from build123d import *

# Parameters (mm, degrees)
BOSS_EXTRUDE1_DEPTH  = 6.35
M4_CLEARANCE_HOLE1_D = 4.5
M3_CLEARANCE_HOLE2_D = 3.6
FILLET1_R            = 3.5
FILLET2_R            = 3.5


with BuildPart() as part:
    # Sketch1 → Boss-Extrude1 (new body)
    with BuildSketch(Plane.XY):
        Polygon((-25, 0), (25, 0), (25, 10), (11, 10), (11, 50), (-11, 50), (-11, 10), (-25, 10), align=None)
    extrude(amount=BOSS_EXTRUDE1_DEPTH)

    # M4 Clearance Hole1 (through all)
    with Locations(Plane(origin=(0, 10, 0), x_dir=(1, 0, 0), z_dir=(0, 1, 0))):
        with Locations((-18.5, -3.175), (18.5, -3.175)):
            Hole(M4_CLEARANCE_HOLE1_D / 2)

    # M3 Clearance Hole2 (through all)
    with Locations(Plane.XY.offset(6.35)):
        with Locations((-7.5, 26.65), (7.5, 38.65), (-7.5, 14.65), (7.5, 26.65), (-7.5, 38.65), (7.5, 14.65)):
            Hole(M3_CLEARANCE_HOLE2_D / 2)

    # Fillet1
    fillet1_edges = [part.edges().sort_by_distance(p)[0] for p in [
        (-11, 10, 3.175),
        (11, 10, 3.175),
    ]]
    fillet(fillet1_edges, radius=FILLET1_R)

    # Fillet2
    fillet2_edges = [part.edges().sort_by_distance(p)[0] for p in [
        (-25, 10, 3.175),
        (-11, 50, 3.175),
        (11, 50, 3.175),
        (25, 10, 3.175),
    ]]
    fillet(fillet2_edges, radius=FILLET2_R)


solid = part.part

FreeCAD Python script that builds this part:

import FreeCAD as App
import Part
import Sketcher


def edges_at(feature, points):
    """Names of the edges that pass closest to the given points."""
    edges = feature.Shape.Edges
    near = lambda p: min(range(len(edges)), key=lambda i: edges[i].distToShape(Part.Vertex(*p))[0])
    return sorted({f"Edge{near(p) + 1}" for p in points})


def add_polygon(sketch, points):
    """Adds a closed chain of lines whose ends are joined by coincident constraints."""
    first, n = sketch.GeometryCount, len(points)
    for a, b in zip(points, points[1:] + points[:1]):
        sketch.addGeometry(Part.LineSegment(App.Vector(*a, 0), App.Vector(*b, 0)), False)
    for i in range(n):
        sketch.addConstraint(Sketcher.Constraint("Coincident", first + i, 2, first + (i + 1) % n, 1))

doc = App.newDocument("Part")
params = doc.addObject("Spreadsheet::Sheet", "Params")
for row, (alias, value) in enumerate([
    ("sketch1_width", "50 mm"),
    ("sketch1_width2", "14 mm"),
    ("sketch1_height", "10 mm"),
    ("sketch1_height2", "40 mm"),
    ("pad1_length", "6.35 mm"),
    ("sketch2_diameter", "4.5 mm"),
    ("hole_diameter", "4.5 mm"),
    ("sketch3_diameter", "3.6 mm"),
    ("hole2_diameter", "3.6 mm"),
    ("fillet_radius", "3.5 mm"),
    ("fillet2_radius", "3.5 mm"),
], start=1):
    params.set(f"A{row}", alias)
    params.set(f"B{row}", "=" + value)
    params.setAlias(f"B{row}", alias)

body = doc.addObject("PartDesign::Body", "Body")

# Sketch on XY plane
sketch1 = body.newObject("Sketcher::SketchObject", "Sketch")
sketch1.AttachmentSupport = (doc.getObject("XY_Plane"), [""])
sketch1.MapMode = "FlatFace"
add_polygon(sketch1, [(-25, 0), (25, 0), (25, 10), (11, 10), (11, 50), (-11, 50), (-11, 10), (-25, 10)])  # lines 0-7
sketch1.addConstraint([
    Sketcher.Constraint("Horizontal", 0),
    Sketcher.Constraint("Vertical", 1),
    Sketcher.Constraint("Horizontal", 2),
    Sketcher.Constraint("Vertical", 3),
    Sketcher.Constraint("Horizontal", 4),
    Sketcher.Constraint("Vertical", 5),
    Sketcher.Constraint("Horizontal", 6),
    Sketcher.Constraint("Vertical", 7),
    Sketcher.Constraint("Symmetric", 0, 2, 7, 2, -1, 1),
    Sketcher.Constraint("Symmetric", 2, 2, 5, 2, -2),
    Sketcher.Constraint("DistanceX", 0, 1, 0, 2, 50.0),
    Sketcher.Constraint("DistanceX", 2, 2, 2, 1, 14.0),
    Sketcher.Constraint("DistanceY", 1, 1, 1, 2, 10.0),
    Sketcher.Constraint("DistanceY", 3, 1, 3, 2, 40.0),
])
sketch1.setExpression("Constraints[18]", "Params.sketch1_width")
sketch1.setExpression("Constraints[19]", "Params.sketch1_width2")
sketch1.setExpression("Constraints[20]", "Params.sketch1_height")
sketch1.setExpression("Constraints[21]", "Params.sketch1_height2")
pad1 = body.newObject("PartDesign::Pad", "Pad")
pad1.Profile = sketch1
pad1.setExpression("Length", "Params.pad1_length")

# Sketch on XZ plane
sketch2 = body.newObject("Sketcher::SketchObject", "Sketch001")
sketch2.AttachmentSupport = (doc.getObject("XZ_Plane"), [""])
sketch2.MapMode = "FlatFace"
sketch2.AttachmentOffset = App.Placement(App.Vector(0, 0, -10), App.Rotation())
sketch2.addGeometry([
    Part.Circle(App.Vector(-18.5, 3.175, 0), App.Vector(0, 0, 1), 2.25),
    Part.Circle(App.Vector(18.5, 3.175, 0), App.Vector(0, 0, 1), 2.25),
], False)
sketch2.addConstraint([
    Sketcher.Constraint("Equal", 0, 1),
    Sketcher.Constraint("Symmetric", 0, 3, 1, 3, -2),
    Sketcher.Constraint("Diameter", 0, 4.5),
    Sketcher.Constraint("DistanceX", 0, 3, 1, 3, 37.0),
    Sketcher.Constraint("DistanceY", -1, 1, 0, 3, 3.175),
])
sketch2.setExpression("Constraints[2]", "Params.sketch2_diameter")
doc.recompute()
hole = body.newObject("PartDesign::Hole", "Hole")
hole.Profile = sketch2
hole.ThreadType = "None"
hole.setExpression("Diameter", "Params.hole_diameter")
hole.DepthType = "ThroughAll"
hole.Reversed = True

# Sketch on XY plane
sketch3 = body.newObject("Sketcher::SketchObject", "Sketch002")
sketch3.AttachmentSupport = (doc.getObject("XY_Plane"), [""])
sketch3.MapMode = "FlatFace"
sketch3.AttachmentOffset = App.Placement(App.Vector(0, 0, 6.35), App.Rotation())
sketch3.addGeometry([
    Part.Circle(App.Vector(-7.5, 26.65, 0), App.Vector(0, 0, 1), 1.8),  # 0
    Part.Circle(App.Vector(7.5, 38.65, 0), App.Vector(0, 0, 1), 1.8),  # 1
    Part.Circle(App.Vector(-7.5, 14.65, 0), App.Vector(0, 0, 1), 1.8),  # 2
    Part.Circle(App.Vector(7.5, 26.65, 0), App.Vector(0, 0, 1), 1.8),  # 3
    Part.Circle(App.Vector(-7.5, 38.65, 0), App.Vector(0, 0, 1), 1.8),  # 4
    Part.Circle(App.Vector(7.5, 14.65, 0), App.Vector(0, 0, 1), 1.8),  # 5
], False)
sketch3.addConstraint([
    Sketcher.Constraint("Equal", 0, 1),
    Sketcher.Constraint("Equal", 1, 2),
    Sketcher.Constraint("Equal", 2, 3),
    Sketcher.Constraint("Equal", 3, 4),
    Sketcher.Constraint("Equal", 4, 5),
    Sketcher.Constraint("Symmetric", 0, 3, 3, 3, -2),
    Sketcher.Constraint("Symmetric", 1, 3, 4, 3, -2),
    Sketcher.Constraint("Symmetric", 2, 3, 5, 3, -2),
    Sketcher.Constraint("Vertical", 0, 3, 2, 3),
    Sketcher.Constraint("Vertical", 1, 3, 3, 3),
    Sketcher.Constraint("Diameter", 0, 3.6),
    Sketcher.Constraint("DistanceX", 0, 3, 1, 3, 15.0),
    Sketcher.Constraint("DistanceY", 0, 3, 1, 3, 12.0),
    Sketcher.Constraint("DistanceY", 2, 3, 0, 3, 12.0),
    Sketcher.Constraint("DistanceY", -1, 1, 0, 3, 26.65),
])
sketch3.setExpression("Constraints[10]", "Params.sketch3_diameter")
doc.recompute()
hole2 = body.newObject("PartDesign::Hole", "Hole001")
hole2.Profile = sketch3
hole2.ThreadType = "None"
hole2.setExpression("Diameter", "Params.hole2_diameter")
hole2.DepthType = "ThroughAll"
doc.recompute()

fillet = body.newObject("PartDesign::Fillet", "Fillet")
fillet.Base = (hole2, edges_at(hole2, [(-11, 10, 3.175), (11, 10, 3.175)]))
fillet.setExpression("Radius", "Params.fillet_radius")
doc.recompute()

fillet2 = body.newObject("PartDesign::Fillet", "Fillet001")
fillet2.Base = (fillet, edges_at(fillet, [
    (-25, 10, 3.175),
    (-11, 50, 3.175),
    (11, 50, 3.175),
    (25, 10, 3.175),
]))
fillet2.setExpression("Radius", "Params.fillet2_radius")

doc.recompute()
